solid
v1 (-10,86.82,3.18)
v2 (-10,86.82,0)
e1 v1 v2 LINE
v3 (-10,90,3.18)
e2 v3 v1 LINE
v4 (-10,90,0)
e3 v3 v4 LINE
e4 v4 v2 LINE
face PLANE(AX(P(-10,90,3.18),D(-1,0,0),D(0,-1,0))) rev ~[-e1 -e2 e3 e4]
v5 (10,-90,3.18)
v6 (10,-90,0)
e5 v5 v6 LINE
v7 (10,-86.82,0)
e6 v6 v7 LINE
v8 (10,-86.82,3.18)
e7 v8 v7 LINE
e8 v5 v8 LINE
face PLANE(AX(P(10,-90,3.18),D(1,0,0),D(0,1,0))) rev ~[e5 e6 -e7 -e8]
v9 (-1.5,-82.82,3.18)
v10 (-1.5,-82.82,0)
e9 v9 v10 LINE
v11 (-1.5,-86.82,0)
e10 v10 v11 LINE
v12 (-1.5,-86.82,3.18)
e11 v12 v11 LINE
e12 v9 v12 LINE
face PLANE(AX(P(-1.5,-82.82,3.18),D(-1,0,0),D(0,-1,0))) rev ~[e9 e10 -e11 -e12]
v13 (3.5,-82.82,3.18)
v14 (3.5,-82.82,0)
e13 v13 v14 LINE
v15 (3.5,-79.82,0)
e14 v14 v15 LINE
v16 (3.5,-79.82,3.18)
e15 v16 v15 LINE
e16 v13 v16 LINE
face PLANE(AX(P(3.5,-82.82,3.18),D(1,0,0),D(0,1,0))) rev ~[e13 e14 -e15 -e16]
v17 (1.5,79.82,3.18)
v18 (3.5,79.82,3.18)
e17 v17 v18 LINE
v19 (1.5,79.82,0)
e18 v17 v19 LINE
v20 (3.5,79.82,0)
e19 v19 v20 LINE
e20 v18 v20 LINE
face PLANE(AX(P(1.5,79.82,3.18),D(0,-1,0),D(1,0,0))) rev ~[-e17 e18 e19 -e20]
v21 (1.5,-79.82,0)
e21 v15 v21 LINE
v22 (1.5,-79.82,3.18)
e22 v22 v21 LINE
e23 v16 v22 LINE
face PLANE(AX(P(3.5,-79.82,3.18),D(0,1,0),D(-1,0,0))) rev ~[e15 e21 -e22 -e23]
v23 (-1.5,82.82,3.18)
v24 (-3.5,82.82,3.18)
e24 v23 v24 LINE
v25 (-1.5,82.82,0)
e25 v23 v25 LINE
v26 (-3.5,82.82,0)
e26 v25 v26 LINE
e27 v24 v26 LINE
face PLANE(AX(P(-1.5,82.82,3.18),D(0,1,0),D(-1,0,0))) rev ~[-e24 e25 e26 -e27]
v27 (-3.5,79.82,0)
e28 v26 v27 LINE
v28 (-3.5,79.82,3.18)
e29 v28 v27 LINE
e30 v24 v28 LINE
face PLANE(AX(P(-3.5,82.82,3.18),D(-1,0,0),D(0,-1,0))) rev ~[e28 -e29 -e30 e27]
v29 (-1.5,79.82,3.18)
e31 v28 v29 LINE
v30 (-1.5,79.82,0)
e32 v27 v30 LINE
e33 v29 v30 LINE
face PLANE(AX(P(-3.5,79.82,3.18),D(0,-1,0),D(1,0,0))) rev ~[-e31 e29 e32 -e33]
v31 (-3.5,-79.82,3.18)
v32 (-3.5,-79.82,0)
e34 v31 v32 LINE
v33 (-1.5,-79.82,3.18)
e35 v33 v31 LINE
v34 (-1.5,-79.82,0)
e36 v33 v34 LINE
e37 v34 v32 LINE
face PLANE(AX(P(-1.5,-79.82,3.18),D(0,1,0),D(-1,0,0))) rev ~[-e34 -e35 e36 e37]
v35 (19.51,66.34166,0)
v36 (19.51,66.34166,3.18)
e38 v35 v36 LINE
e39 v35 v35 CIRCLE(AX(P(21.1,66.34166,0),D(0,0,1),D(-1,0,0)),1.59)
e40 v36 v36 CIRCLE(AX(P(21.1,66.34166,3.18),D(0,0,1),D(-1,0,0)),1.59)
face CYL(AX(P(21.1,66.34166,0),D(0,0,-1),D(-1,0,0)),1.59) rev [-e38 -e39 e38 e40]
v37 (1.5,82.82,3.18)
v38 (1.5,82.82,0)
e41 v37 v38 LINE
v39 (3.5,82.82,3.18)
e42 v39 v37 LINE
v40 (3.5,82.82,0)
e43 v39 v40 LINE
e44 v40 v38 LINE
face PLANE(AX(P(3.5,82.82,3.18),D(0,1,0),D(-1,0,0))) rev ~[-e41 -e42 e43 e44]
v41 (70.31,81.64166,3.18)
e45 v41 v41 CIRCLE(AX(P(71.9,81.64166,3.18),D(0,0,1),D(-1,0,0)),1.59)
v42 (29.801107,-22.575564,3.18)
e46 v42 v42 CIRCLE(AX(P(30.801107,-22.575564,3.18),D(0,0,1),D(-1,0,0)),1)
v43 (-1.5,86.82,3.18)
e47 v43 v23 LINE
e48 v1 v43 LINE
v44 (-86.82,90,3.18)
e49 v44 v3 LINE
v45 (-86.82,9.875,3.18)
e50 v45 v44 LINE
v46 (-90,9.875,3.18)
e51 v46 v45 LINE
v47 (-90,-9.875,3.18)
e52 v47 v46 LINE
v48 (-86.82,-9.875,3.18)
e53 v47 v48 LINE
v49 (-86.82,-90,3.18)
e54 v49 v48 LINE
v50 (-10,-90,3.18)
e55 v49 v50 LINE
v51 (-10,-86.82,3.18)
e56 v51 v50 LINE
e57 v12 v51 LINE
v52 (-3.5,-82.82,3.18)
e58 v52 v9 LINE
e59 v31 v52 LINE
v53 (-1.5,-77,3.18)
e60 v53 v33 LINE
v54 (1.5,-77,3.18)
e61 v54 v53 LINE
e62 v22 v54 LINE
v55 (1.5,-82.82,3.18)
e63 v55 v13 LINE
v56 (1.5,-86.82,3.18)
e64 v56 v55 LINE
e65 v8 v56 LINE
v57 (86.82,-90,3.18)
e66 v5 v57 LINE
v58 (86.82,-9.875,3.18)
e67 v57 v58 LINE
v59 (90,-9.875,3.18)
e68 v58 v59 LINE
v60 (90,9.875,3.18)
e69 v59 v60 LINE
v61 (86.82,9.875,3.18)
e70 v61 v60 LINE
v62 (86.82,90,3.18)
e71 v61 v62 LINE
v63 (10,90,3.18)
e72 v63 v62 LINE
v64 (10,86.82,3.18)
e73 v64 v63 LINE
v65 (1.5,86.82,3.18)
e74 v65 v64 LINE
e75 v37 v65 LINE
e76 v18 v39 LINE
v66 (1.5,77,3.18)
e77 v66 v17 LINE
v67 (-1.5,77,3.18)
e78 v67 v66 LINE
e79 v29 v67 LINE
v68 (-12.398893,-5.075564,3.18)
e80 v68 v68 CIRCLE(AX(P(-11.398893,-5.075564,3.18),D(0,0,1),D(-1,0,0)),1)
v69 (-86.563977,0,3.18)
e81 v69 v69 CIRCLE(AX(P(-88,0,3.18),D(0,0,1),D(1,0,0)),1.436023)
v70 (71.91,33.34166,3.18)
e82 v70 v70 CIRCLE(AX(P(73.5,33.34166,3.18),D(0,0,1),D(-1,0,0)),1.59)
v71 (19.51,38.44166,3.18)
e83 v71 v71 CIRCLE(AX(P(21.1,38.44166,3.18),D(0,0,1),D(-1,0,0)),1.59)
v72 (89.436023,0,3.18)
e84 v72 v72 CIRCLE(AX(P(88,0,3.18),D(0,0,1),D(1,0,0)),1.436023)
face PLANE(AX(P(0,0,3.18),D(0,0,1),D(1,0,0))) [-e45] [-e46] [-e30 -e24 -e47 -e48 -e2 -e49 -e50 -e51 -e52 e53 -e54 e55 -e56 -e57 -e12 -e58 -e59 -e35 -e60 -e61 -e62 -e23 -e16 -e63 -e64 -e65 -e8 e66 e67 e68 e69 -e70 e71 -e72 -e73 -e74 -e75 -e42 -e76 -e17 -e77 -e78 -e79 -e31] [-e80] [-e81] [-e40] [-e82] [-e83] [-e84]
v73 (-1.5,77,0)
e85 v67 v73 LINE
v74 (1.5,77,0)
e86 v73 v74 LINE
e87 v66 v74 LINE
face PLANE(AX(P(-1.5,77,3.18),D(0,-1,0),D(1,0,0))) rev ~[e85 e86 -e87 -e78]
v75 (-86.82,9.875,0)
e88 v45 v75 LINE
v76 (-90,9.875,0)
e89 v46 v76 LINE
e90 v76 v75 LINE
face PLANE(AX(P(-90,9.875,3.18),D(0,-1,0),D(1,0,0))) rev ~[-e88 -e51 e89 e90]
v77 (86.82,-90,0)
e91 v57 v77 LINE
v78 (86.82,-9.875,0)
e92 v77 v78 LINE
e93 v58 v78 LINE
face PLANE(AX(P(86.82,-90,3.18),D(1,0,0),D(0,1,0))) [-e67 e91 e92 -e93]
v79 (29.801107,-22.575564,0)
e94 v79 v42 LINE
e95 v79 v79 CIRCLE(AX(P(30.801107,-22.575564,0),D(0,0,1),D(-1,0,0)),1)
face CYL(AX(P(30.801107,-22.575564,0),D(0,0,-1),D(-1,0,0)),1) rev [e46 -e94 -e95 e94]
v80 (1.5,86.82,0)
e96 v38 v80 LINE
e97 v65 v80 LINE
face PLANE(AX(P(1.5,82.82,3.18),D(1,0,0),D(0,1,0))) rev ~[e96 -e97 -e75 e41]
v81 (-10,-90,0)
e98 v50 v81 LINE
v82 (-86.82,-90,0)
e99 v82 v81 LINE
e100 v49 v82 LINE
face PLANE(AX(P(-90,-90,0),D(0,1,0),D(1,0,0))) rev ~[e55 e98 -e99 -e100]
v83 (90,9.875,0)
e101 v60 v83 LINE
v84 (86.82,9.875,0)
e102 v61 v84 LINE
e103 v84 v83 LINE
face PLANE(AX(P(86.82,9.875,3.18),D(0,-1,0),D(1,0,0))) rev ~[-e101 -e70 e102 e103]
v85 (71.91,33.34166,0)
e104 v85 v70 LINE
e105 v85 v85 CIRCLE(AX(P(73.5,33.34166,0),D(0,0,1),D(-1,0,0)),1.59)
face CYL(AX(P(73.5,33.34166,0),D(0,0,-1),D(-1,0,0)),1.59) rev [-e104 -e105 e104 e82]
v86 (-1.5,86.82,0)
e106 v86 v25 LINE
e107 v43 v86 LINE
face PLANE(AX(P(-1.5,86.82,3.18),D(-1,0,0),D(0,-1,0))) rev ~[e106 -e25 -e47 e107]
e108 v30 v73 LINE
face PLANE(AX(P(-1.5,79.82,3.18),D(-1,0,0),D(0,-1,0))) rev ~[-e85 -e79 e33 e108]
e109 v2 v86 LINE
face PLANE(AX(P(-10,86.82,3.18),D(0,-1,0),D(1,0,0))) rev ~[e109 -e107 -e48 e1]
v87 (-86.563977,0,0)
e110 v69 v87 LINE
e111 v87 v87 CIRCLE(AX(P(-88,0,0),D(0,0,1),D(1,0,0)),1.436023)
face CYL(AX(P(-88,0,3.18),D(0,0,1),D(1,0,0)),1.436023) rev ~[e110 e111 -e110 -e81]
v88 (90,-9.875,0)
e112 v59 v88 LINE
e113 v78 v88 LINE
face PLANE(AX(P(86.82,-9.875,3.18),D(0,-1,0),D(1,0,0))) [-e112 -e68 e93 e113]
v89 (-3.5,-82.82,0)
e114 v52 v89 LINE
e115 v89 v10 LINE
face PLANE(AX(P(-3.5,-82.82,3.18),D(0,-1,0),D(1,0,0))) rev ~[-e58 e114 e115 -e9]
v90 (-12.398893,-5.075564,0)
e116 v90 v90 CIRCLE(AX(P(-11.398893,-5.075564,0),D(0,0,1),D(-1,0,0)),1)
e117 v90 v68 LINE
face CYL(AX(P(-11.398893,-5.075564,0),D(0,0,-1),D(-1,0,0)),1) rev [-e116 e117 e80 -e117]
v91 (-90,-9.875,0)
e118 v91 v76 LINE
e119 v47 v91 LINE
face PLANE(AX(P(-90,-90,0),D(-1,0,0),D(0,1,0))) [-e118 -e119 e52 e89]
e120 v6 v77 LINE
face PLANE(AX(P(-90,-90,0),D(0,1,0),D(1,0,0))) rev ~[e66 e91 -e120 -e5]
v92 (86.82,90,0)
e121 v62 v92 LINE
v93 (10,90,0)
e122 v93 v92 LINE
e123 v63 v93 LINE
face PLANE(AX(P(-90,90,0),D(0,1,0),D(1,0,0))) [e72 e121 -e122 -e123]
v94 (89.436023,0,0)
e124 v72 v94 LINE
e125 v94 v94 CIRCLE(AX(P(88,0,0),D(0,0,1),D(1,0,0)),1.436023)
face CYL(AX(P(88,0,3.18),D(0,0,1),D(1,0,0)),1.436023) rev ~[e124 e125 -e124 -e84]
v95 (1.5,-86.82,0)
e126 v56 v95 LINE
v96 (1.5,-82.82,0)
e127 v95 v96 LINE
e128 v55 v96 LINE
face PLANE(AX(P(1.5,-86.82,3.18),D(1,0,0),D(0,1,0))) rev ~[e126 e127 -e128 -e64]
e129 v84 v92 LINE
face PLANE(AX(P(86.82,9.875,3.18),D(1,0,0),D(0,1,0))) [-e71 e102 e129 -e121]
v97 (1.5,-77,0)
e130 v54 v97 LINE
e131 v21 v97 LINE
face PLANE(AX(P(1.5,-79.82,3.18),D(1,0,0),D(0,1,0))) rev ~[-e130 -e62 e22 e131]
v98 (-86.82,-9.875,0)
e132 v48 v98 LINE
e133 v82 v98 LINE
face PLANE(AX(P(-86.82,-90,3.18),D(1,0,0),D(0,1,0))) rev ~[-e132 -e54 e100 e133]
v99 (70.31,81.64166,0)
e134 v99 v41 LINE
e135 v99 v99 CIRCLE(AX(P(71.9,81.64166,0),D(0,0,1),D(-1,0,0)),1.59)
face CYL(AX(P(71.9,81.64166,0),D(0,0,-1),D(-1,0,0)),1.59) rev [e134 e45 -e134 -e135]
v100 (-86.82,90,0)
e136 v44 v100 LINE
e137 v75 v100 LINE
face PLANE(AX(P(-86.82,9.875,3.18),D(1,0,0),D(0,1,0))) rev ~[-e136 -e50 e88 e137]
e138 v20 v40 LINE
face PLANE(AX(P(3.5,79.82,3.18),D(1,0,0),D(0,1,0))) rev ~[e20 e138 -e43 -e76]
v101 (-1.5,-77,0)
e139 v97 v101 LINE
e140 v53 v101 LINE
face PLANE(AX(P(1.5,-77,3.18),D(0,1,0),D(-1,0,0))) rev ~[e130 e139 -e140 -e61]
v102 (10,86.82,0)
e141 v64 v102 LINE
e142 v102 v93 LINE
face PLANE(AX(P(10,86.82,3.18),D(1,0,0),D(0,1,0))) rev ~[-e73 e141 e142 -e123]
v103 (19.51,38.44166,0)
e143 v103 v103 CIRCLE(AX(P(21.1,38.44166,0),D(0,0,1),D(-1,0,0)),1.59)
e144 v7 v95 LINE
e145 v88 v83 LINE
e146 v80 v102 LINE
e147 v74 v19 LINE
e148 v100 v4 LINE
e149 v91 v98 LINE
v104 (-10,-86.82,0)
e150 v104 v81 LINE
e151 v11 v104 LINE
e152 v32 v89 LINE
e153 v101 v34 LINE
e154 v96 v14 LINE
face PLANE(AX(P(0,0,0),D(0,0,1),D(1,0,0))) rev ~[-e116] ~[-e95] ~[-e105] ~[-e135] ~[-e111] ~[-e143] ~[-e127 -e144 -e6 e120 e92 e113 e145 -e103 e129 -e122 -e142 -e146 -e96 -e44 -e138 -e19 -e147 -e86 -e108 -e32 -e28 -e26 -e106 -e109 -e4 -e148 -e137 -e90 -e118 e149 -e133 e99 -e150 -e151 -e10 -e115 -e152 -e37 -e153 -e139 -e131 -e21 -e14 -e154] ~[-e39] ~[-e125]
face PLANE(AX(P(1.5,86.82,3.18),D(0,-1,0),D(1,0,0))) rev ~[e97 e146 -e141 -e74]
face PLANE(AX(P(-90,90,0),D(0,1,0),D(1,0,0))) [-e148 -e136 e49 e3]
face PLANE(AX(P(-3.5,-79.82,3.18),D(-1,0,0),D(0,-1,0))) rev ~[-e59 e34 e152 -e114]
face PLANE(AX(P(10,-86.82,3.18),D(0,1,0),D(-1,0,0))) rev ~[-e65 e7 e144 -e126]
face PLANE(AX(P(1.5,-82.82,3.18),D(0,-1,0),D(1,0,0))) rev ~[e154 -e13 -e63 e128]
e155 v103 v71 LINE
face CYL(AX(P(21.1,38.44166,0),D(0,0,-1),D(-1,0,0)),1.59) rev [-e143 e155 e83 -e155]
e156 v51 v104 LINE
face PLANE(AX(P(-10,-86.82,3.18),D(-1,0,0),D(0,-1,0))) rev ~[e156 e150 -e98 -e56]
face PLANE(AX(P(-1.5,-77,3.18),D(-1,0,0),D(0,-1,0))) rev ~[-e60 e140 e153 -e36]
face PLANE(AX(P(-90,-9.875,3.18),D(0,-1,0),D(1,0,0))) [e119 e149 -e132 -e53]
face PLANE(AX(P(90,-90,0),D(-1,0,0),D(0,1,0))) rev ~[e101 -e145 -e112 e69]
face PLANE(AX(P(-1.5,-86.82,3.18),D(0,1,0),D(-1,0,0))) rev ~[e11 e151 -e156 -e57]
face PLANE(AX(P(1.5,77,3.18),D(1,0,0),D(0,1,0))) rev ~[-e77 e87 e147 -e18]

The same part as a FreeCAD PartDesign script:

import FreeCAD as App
import Part
import Sketcher


def add_polygon(sketch, points):
    """Adds a closed chain of lines whose ends are joined by coincident constraints."""
    first, n = sketch.GeometryCount, len(points)
    for a, b in zip(points, points[1:] + points[:1]):
        sketch.addGeometry(Part.LineSegment(App.Vector(*a, 0), App.Vector(*b, 0)), False)
    for i in range(n):
        sketch.addConstraint(Sketcher.Constraint("Coincident", first + i, 2, first + (i + 1) % n, 1))

doc = App.newDocument("Part")
body = doc.addObject("PartDesign::Body", "Body")

# Sketch on XY plane
sketch1 = body.newObject("Sketcher::SketchObject", "Sketch")
sketch1.AttachmentSupport = (doc.getObject("XY_Plane"), [""])
sketch1.MapMode = "FlatFace"
add_polygon(sketch1, [(-90, 90), (-90, -90), (90, -90), (90, 90)])  # lines 0-3
sketch1.addGeometry(Part.Circle(App.Vector(-11.398893, -5.075564, 0), App.Vector(0, 0, 1), 1), False)  # 4
sketch1.addGeometry(Part.Circle(App.Vector(30.801107, -22.575564, 0), App.Vector(0, 0, 1), 1), False)  # 5
sketch1.addGeometry(Part.Circle(App.Vector(21.1, 38.44166, 0), App.Vector(0, 0, 1), 1.59), False)  # 6
sketch1.addGeometry(Part.Circle(App.Vector(21.1, 66.34166, 0), App.Vector(0, 0, 1), 1.59), False)  # 7
sketch1.addGeometry(Part.Circle(App.Vector(73.5, 33.34166, 0), App.Vector(0, 0, 1), 1.59), False)  # 8
sketch1.addGeometry(Part.Circle(App.Vector(71.9, 81.64166, 0), App.Vector(0, 0, 1), 1.59), False)  # 9
sketch1.addConstraint([
    Sketcher.Constraint("Vertical", 0),
    Sketcher.Constraint("Horizontal", 1),
    Sketcher.Constraint("Vertical", 2),
    Sketcher.Constraint("Horizontal", 3),
    Sketcher.Constraint("Equal", 4, 5),
    Sketcher.Constraint("Equal", 6, 7),
    Sketcher.Constraint("Equal", 7, 8),
    Sketcher.Constraint("Equal", 8, 9),
    Sketcher.Constraint("Symmetric", 0, 2, 2, 2, -1, 1),
    Sketcher.Constraint("Vertical", 6, 3, 7, 3),
    Sketcher.Constraint("Equal", 3, 0),
    Sketcher.Constraint("Diameter", 4, 2.0),
    Sketcher.Constraint("Diameter", 6, 3.18),
    Sketcher.Constraint("DistanceX", 1, 1, 1, 2, 180.0),
    Sketcher.Constraint("DistanceY", 8, 3, 7, 3, 33.0),
    Sketcher.Constraint("DistanceX", -1, 1, 6, 3, 21.1),
    Sketcher.Constraint("DistanceX", -1, 1, 8, 3, 73.5),
    Sketcher.Constraint("DistanceX", -1, 1, 9, 3, 71.9),
    Sketcher.Constraint("DistanceX", 4, 3, 5, 3, 42.2),
    Sketcher.Constraint("DistanceY", 5, 3, 4, 3, 17.5),
    Sketcher.Constraint("DistanceY", 6, 3, 7, 3, 27.9),
    Sketcher.Constraint("DistanceY", 8, 3, 9, 3, 48.3),
    Sketcher.Constraint("DistanceY", -1, 1, 6, 3, 38.44166),
    Sketcher.Constraint("DistanceX", 4, 3, -1, 1, 11.398893),
    Sketcher.Constraint("DistanceY", 4, 3, -1, 1, 5.075564),
])
pad1 = body.newObject("PartDesign::Pad", "Pad")
pad1.Profile = sketch1
pad1.Length = 3.18

# Sketch on XY plane
sketch2 = body.newObject("Sketcher::SketchObject", "Sketch001")
sketch2.AttachmentSupport = (doc.getObject("XY_Plane"), [""])
sketch2.MapMode = "FlatFace"
sketch2.AttachmentOffset = App.Placement(App.Vector(0, 0, 3.18), App.Rotation())
add_polygon(sketch2, [(1.5, 86.82), (10, 86.82), (10, 90), (-10, 90), (-10, 86.82), (-1.5, 86.82), (-1.5, 82.82), (-3.5, 82.82), (-3.5, 79.82), (-1.5, 79.82), (-1.5, 77), (1.5, 77), (1.5, 79.82), (3.5, 79.82), (3.5, 82.82), (1.5, 82.82)])  # lines 0-15
add_polygon(sketch2, [(1.5, -79.82), (1.5, -77), (-1.5, -77), (-1.5, -79.82), (-3.5, -79.82), (-3.5, -82.82), (-1.5, -82.82), (-1.5, -86.82), (-10, -86.82), (-10, -90), (10, -90), (10, -86.82), (1.5, -86.82), (1.5, -82.82), (3.5, -82.82), (3.5, -79.82)])  # lines 16-31
sketch2.addConstraint([
    Sketcher.Constraint("Horizontal", 0),
    Sketcher.Constraint("Vertical", 1),
    Sketcher.Constraint("Horizontal", 2),
    Sketcher.Constraint("Vertical", 3),
    Sketcher.Constraint("Horizontal", 4),
    Sketcher.Constraint("Vertical", 5),
    Sketcher.Constraint("Horizontal", 6),
    Sketcher.Constraint("Vertical", 7),
    Sketcher.Constraint("Horizontal", 8),
    Sketcher.Constraint("Vertical", 9),
    Sketcher.Constraint("Horizontal", 10),
    Sketcher.Constraint("Vertical", 11),
    Sketcher.Constraint("Horizontal", 12),
    Sketcher.Constraint("Vertical", 13),
    Sketcher.Constraint("Horizontal", 14),
    Sketcher.Constraint("Vertical", 15),
    Sketcher.Constraint("Vertical", 16),
    Sketcher.Constraint("Horizontal", 17),
    Sketcher.Constraint("Vertical", 18),
    Sketcher.Constraint("Horizontal", 19),
    Sketcher.Constraint("Vertical", 20),
    Sketcher.Constraint("Horizontal", 21),
    Sketcher.Constraint("Vertical", 22),
    Sketcher.Constraint("Horizontal", 23),
    Sketcher.Constraint("Vertical", 24),
    Sketcher.Constraint("Horizontal", 25),
    Sketcher.Constraint("Vertical", 26),
    Sketcher.Constraint("Horizontal", 27),
    Sketcher.Constraint("Vertical", 28),
    Sketcher.Constraint("Horizontal", 29),
    Sketcher.Constraint("Vertical", 30),
    Sketcher.Constraint("Horizontal", 31),
    Sketcher.Constraint("Symmetric", 9, 2, 16, 2, -1, 1),
    Sketcher.Constraint("Symmetric", 11, 2, 18, 2, -1, 1),
    Sketcher.Constraint("Symmetric", 13, 2, 20, 2, -1, 1),
    Sketcher.Constraint("Symmetric", 15, 2, 22, 2, -1, 1),
    Sketcher.Constraint("Symmetric", 1, 2, 24, 2, -1, 1),
    Sketcher.Constraint("Symmetric", 3, 2, 26, 2, -1, 1),
    Sketcher.Constraint("Symmetric", 5, 2, 28, 2, -1, 1),
    Sketcher.Constraint("Symmetric", 7, 2, 30, 2, -1, 1),
    Sketcher.Constraint("Symmetric", 0, 2, 3, 2, -2),
    Sketcher.Constraint("Symmetric", 8, 2, 11, 2, -2),
    Sketcher.Constraint("Symmetric", 6, 2, 13, 2, -2),
    Sketcher.Constraint("Vertical", 5, 2, 8, 2),
    Sketcher.Constraint("Vertical", 11, 2, 14, 2),
    Sketcher.Constraint("Equal", 17, 7),
    Sketcher.Constraint("DistanceX", 2, 2, 2, 1, 20.0),
    Sketcher.Constraint("DistanceX", 6, 2, 6, 1, 2.0),
    Sketcher.Constraint("DistanceX", 10, 1, 10, 2, 3.0),
    Sketcher.Constraint("DistanceY", 5, 2, 5, 1, 4.0),
    Sketcher.Constraint("DistanceY", -1, 1, 1, 2, 90.0),
    Sketcher.Constraint("DistanceY", -1, 1, 9, 2, 77.0),
    Sketcher.Constraint("DistanceY", 1, 1, 1, 2, 3.18),
])
pocket1 = body.newObject("PartDesign::Pocket", "Pocket")
pocket1.Profile = sketch2
pocket1.Type = "ThroughAll"

# Sketch on XY plane
sketch3 = body.newObject("Sketcher::SketchObject", "Sketch002")
sketch3.AttachmentSupport = (doc.getObject("XY_Plane"), [""])
sketch3.MapMode = "FlatFace"
sketch3.AttachmentOffset = App.Placement(App.Vector(0, 0, 3.18), App.Rotation())
sketch3.addGeometry(Part.Circle(App.Vector(-88, 0, 0), App.Vector(0, 0, 1), 1.436023), False)  # 0
sketch3.addGeometry(Part.Circle(App.Vector(88, 0, 0), App.Vector(0, 0, 1), 1.436023), False)  # 1
add_polygon(sketch3, [(-90, 90), (-90, 9.875), (-86.82, 9.875), (-86.82, 90)])  # lines 2-5
add_polygon(sketch3, [(-90, -9.875), (-90, -90), (-86.82, -90), (-86.82, -9.875)])  # lines 6-9
add_polygon(sketch3, [(86.82, -9.875), (86.82, -90), (90, -90), (90, -9.875)])  # lines 10-13
add_polygon(sketch3, [(86.82, 90), (86.82, 9.875), (90, 9.875), (90, 90)])  # lines 14-17
sketch3.addConstraint([
    Sketcher.Constraint("Vertical", 2),
    Sketcher.Constraint("Horizontal", 3),
    Sketcher.Constraint("Vertical", 4),
    Sketcher.Constraint("Horizontal", 5),
    Sketcher.Constraint("Vertical", 6),
    Sketcher.Constraint("Horizontal", 7),
    Sketcher.Constraint("Vertical", 8),
    Sketcher.Constraint("Horizontal", 9),
    Sketcher.Constraint("Vertical", 10),
    Sketcher.Constraint("Horizontal", 11),
    Sketcher.Constraint("Vertical", 12),
    Sketcher.Constraint("Horizontal", 13),
    Sketcher.Constraint("Vertical", 14),
    Sketcher.Constraint("Horizontal", 15),
    Sketcher.Constraint("Vertical", 16),
    Sketcher.Constraint("Horizontal", 17),
    Sketcher.Constraint("Equal", 0, 1),
    Sketcher.Constraint("Symmetric", 0, 3, 1, 3, -1, 1),
    Sketcher.Constraint("Symmetric", 4, 2, 10, 2, -1, 1),
    Sketcher.Constraint("Symmetric", 2, 2, 12, 2, -1, 1),
    Sketcher.Constraint("Symmetric", 8, 2, 14, 2, -1, 1),
    Sketcher.Constraint("Symmetric", 6, 2, 16, 2, -1, 1),
    Sketcher.Constraint("Symmetric", 7, 2, 10, 2, -2),
    Sketcher.Constraint("Symmetric", 9, 2, 12, 2, -2),
    Sketcher.Constraint("PointOnObject", 0, 3, -1),
    Sketcher.Constraint("DistanceX", 0, 3, -1, 1, 88.0),
    Sketcher.Constraint("DistanceX", 2, 2, -1, 1, 90.0),
    Sketcher.Constraint("DistanceY", -1, 1, 4, 2, 90.0),
    Sketcher.Constraint("DistanceX", 3, 1, 3, 2, 3.18),
    Sketcher.Constraint("DistanceY", 2, 2, 2, 1, 80.125),
    Sketcher.Constraint("Diameter", 0, 2.872046),
])
pocket2 = body.newObject("PartDesign::Pocket", "Pocket001")
pocket2.Profile = sketch3
pocket2.Type = "ThroughAll"

doc.recompute()
